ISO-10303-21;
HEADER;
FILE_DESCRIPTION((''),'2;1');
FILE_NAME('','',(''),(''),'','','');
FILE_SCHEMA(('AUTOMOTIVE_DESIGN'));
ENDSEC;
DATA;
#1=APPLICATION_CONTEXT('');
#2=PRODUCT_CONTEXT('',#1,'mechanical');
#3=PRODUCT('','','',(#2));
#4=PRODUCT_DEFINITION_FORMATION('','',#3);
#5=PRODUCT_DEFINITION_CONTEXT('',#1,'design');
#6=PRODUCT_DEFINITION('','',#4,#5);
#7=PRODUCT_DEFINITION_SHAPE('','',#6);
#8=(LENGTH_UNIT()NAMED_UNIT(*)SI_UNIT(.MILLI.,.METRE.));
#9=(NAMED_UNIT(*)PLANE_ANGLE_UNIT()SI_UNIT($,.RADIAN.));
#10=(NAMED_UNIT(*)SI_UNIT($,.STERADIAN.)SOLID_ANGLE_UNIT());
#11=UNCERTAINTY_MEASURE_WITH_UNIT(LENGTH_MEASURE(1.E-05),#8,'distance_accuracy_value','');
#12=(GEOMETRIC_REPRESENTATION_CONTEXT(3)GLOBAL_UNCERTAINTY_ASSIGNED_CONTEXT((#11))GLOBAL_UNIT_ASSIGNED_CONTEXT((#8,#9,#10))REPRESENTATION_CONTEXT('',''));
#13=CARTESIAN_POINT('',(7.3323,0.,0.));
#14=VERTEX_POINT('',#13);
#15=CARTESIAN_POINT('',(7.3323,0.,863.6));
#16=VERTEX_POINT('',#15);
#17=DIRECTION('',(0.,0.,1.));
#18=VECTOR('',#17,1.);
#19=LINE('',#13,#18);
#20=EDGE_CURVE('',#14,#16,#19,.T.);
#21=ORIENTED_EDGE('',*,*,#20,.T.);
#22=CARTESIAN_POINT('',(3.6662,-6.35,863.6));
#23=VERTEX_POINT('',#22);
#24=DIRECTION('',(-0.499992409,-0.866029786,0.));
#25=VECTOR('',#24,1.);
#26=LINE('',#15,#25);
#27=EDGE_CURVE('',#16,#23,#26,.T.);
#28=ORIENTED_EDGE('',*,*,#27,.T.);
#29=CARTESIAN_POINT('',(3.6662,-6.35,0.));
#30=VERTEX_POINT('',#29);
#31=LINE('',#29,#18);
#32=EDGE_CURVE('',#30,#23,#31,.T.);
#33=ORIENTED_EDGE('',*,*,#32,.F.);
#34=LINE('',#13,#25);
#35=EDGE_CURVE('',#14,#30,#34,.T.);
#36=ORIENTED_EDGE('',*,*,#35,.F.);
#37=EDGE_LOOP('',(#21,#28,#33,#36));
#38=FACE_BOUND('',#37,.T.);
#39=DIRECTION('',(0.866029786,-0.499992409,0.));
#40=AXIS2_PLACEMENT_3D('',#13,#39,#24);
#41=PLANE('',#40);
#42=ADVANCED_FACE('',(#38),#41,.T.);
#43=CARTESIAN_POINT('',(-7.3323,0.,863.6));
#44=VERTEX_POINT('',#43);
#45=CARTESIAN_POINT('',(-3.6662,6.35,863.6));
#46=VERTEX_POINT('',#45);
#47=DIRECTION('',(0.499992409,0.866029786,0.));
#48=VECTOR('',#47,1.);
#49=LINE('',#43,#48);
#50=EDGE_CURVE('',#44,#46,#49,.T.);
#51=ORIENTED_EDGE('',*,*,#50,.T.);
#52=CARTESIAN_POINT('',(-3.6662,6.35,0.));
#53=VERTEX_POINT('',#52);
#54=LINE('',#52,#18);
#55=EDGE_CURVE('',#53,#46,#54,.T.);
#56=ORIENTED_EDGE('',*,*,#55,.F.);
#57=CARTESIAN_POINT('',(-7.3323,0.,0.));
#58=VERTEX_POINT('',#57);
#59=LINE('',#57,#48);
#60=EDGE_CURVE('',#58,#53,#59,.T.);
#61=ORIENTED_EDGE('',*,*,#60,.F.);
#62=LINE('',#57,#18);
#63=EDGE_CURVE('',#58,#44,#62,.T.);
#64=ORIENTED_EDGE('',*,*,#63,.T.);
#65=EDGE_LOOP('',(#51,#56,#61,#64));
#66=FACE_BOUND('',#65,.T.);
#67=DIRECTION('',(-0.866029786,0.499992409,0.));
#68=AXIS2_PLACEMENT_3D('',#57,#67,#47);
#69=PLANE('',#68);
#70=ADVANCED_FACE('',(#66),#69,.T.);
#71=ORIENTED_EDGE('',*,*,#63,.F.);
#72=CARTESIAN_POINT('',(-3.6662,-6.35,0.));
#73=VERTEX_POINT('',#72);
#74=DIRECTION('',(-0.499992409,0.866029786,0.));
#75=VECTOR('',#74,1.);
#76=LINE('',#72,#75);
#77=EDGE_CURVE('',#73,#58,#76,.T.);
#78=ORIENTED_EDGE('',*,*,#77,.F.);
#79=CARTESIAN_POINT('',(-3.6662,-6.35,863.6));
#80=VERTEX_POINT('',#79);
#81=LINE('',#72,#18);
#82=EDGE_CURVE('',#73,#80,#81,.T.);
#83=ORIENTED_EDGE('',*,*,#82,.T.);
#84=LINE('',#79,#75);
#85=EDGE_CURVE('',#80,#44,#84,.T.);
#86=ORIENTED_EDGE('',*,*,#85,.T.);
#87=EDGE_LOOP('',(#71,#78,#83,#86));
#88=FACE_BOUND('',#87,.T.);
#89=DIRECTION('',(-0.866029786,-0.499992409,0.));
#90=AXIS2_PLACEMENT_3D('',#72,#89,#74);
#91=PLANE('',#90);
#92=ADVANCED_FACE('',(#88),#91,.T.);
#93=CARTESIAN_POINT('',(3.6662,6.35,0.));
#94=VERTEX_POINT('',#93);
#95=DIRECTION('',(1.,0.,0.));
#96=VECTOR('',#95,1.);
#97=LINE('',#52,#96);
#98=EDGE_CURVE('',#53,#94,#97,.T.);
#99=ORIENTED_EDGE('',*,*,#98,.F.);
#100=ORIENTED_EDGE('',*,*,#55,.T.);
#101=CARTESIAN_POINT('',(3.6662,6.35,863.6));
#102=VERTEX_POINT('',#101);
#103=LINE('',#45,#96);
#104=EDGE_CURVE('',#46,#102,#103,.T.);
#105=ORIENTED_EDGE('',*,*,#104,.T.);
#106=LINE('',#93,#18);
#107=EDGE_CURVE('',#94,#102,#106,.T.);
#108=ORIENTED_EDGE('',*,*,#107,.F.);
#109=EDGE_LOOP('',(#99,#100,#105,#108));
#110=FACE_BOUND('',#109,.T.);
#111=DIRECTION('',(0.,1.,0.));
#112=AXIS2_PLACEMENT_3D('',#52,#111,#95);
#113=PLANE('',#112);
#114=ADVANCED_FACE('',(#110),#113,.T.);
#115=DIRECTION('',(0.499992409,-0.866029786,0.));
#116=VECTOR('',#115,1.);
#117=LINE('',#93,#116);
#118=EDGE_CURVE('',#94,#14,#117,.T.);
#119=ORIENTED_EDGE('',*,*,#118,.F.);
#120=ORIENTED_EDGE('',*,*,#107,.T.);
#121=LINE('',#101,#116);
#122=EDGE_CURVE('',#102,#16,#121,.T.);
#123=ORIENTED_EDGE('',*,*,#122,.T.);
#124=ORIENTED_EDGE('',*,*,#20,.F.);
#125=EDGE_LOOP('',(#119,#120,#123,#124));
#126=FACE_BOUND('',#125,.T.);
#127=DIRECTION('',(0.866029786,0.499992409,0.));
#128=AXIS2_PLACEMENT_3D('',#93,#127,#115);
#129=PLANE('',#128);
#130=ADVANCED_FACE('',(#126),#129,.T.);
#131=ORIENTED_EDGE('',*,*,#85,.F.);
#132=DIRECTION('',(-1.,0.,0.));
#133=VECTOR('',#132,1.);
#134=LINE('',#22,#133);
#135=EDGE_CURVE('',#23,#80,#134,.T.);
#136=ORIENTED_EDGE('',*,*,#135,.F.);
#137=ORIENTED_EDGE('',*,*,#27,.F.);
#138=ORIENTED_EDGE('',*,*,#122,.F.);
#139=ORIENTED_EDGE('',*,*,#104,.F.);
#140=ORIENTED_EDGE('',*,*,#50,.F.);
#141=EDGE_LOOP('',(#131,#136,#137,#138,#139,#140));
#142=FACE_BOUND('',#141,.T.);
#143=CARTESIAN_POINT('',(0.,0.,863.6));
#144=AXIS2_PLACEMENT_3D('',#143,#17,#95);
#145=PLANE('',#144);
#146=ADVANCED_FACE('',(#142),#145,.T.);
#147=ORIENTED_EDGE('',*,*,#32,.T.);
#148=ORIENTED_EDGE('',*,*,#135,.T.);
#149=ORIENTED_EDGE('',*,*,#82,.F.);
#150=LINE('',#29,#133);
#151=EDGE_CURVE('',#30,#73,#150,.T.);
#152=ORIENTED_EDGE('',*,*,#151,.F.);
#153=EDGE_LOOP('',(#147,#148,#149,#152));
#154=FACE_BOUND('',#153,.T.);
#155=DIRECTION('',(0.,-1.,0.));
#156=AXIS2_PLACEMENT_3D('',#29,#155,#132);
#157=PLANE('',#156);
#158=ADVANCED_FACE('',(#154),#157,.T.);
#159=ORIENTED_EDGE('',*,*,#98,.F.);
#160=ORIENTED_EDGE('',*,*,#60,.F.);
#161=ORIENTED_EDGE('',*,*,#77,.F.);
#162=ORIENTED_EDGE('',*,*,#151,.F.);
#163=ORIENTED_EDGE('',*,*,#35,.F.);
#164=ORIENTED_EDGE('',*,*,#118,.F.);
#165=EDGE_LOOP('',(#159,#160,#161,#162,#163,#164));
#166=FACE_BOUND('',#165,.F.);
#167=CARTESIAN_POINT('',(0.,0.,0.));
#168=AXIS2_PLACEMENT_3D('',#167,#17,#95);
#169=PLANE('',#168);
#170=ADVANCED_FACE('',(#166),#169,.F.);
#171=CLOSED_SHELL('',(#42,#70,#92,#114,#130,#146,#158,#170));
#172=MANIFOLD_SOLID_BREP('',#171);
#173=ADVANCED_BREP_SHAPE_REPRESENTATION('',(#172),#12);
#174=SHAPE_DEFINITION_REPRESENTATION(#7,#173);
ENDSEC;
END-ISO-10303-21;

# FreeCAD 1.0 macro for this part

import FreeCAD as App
import Part
import Sketcher
from FreeCAD import Vector
Q = App.Units.Quantity


def add_polygon(sketch, points):
    """Adds a closed chain of lines whose ends are joined by coincident constraints."""
    first, n = sketch.GeometryCount, len(points)
    for a, b in zip(points, points[1:] + points[:1]):
        sketch.addGeometry(Part.LineSegment(App.Vector(*a, 0), App.Vector(*b, 0)), False)
    for i in range(n):
        sketch.addConstraint(Sketcher.Constraint("Coincident", first + i, 2, first + (i + 1) % n, 1))

doc = App.newDocument("Part")
body = doc.addObject("PartDesign::Body", "Body")

sketch1 = body.newObject("Sketcher::SketchObject", "Sketch")
sketch1.AttachmentSupport = (doc.getObject("XY_Plane"), [""])
sketch1.MapMode = "FlatFace"
add_polygon(sketch1, [(7, 0), (4, 6), (-4, 6), (-7, 0), (-4, -6), (4, -6)])
sketch1.addConstraint([
    Sketcher.Constraint("Horizontal", 1),
    Sketcher.Constraint("Horizontal", 4),
    Sketcher.Constraint("Symmetric", 0, 2, 3, 2, -1, 1),
    Sketcher.Constraint("Symmetric", 2, 2, 5, 2, -1, 1),
    Sketcher.Constraint("PointOnObject", 2, 2, -1),
    Sketcher.Constraint("Parallel", 2, 5),
    Sketcher.Constraint("Vertical", 1, 2, 3, 2),
    Sketcher.Constraint("DistanceY", 3, 2, 1, 2, Q("0.5 in")),
    Sketcher.Constraint("Angle", 0, Q("119.9995 deg")),
    Sketcher.Constraint("DistanceX", 2, 2, 0, 2, Q("0.433 in")),
])
pad1 = body.newObject("PartDesign::Pad", "Pad")
pad1.Profile = sketch1
pad1.Length = Q("34 in")

doc.recompute()
